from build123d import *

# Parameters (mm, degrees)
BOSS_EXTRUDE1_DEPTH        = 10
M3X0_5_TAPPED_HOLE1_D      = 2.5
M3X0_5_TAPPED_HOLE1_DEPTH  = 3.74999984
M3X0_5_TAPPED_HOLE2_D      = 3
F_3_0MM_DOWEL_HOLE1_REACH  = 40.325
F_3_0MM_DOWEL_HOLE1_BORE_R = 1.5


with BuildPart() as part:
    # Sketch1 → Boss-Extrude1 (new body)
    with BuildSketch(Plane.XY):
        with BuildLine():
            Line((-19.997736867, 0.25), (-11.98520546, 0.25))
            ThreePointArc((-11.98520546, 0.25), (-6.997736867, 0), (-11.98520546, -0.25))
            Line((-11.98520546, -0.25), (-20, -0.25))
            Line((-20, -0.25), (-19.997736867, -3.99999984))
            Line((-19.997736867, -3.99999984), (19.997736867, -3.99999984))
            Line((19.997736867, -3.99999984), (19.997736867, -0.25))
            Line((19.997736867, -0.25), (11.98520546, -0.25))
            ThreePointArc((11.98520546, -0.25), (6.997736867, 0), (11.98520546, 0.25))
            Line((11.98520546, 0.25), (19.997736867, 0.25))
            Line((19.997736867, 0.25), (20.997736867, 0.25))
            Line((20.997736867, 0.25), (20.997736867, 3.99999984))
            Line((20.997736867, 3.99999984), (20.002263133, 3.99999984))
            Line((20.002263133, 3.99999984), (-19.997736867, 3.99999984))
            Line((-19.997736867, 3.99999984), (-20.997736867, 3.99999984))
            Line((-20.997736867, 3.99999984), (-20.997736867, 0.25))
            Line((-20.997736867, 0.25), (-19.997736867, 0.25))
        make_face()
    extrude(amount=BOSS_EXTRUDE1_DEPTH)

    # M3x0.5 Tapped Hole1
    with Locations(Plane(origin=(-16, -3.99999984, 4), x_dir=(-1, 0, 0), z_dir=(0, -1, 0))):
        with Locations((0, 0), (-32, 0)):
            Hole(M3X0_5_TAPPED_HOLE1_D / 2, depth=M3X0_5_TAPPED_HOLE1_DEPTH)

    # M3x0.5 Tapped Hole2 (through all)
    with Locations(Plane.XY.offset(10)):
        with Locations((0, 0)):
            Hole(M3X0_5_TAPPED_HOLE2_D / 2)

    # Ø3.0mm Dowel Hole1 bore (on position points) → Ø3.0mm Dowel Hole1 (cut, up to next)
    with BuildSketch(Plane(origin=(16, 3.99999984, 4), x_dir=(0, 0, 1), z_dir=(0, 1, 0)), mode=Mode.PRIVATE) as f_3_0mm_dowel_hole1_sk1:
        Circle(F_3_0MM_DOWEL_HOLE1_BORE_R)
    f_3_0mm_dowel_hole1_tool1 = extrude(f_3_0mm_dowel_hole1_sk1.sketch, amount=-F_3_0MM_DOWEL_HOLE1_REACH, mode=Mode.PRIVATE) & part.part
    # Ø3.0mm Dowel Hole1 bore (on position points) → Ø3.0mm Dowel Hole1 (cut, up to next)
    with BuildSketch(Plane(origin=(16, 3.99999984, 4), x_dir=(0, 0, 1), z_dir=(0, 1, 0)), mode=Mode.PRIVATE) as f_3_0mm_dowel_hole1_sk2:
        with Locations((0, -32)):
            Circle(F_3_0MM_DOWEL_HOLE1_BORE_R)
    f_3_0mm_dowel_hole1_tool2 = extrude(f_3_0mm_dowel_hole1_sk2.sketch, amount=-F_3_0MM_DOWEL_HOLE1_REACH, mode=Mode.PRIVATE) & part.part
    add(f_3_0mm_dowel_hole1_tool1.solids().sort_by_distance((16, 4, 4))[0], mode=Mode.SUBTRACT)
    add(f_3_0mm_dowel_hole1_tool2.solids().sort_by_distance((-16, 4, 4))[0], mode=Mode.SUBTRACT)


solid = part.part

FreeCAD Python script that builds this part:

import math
import FreeCAD as App
import Part
import Sketcher
Q = App.Units.Quantity

doc = App.newDocument("Part")
body = doc.addObject("PartDesign::Body", "Body")

# Sketch on XY plane
sketch1 = body.newObject("Sketcher::SketchObject", "Sketch")
sketch1.AttachmentSupport = (doc.getObject("XY_Plane"), [""])
sketch1.MapMode = "FlatFace"
sketch1.addGeometry(Part.ArcOfCircle(Part.Circle(App.Vector(-9.5, 0, 0), App.Vector(0, 0, 1), 2.5), math.radians(-174), math.radians(174)), False)
sketch1.addGeometry(Part.LineSegment(App.Vector(-12, -0.2, 0), App.Vector(-20, -0.2, 0)), False)
sketch1.addGeometry(Part.LineSegment(App.Vector(-20, -0.2, 0), App.Vector(-20, -4, 0)), False)
sketch1.addGeometry(Part.LineSegment(App.Vector(-20, -4, 0), App.Vector(20, -4, 0)), False)
sketch1.addGeometry(Part.LineSegment(App.Vector(20, -4, 0), App.Vector(20, -0.2, 0)), False)
sketch1.addGeometry(Part.LineSegment(App.Vector(20, -0.2, 0), App.Vector(12, -0.2, 0)), False)
sketch1.addGeometry(Part.ArcOfCircle(Part.Circle(App.Vector(9.5, 0, 0), App.Vector(0, 0, 1), 2.5), math.radians(6), math.radians(354)), False)
sketch1.addGeometry(Part.LineSegment(App.Vector(12, 0.2, 0), App.Vector(21, 0.2, 0)), False)
sketch1.addGeometry(Part.LineSegment(App.Vector(21, 0.2, 0), App.Vector(21, 4, 0)), False)
sketch1.addGeometry(Part.LineSegment(App.Vector(21, 4, 0), App.Vector(-21, 4, 0)), False)
sketch1.addGeometry(Part.LineSegment(App.Vector(-21, 4, 0), App.Vector(-21, 0.2, 0)), False)
sketch1.addGeometry(Part.LineSegment(App.Vector(-21, 0.2, 0), App.Vector(-12, 0.2, 0)), False)
sketch1.addConstraint(Sketcher.Constraint("Coincident", 0, 1, 1, 1))
sketch1.addConstraint(Sketcher.Constraint("Coincident", 1, 2, 2, 1))
sketch1.addConstraint(Sketcher.Constraint("Coincident", 2, 2, 3, 1))
sketch1.addConstraint(Sketcher.Constraint("Coincident", 3, 2, 4, 1))
sketch1.addConstraint(Sketcher.Constraint("Coincident", 4, 2, 5, 1))
sketch1.addConstraint(Sketcher.Constraint("Coincident", 5, 2, 6, 2))
sketch1.addConstraint(Sketcher.Constraint("Coincident", 6, 1, 7, 1))
sketch1.addConstraint(Sketcher.Constraint("Coincident", 7, 2, 8, 1))
sketch1.addConstraint(Sketcher.Constraint("Coincident", 8, 2, 9, 1))
sketch1.addConstraint(Sketcher.Constraint("Coincident", 9, 2, 10, 1))
sketch1.addConstraint(Sketcher.Constraint("Coincident", 10, 2, 11, 1))
sketch1.addConstraint(Sketcher.Constraint("Coincident", 11, 2, 0, 2))
sketch1.addConstraint(Sketcher.Constraint("Horizontal", 1))
sketch1.addConstraint(Sketcher.Constraint("Horizontal", 3))
sketch1.addConstraint(Sketcher.Constraint("Vertical", 4))
sketch1.addConstraint(Sketcher.Constraint("Horizontal", 5))
sketch1.addConstraint(Sketcher.Constraint("Horizontal", 7))
sketch1.addConstraint(Sketcher.Constraint("Vertical", 8))
sketch1.addConstraint(Sketcher.Constraint("Horizontal", 9))
sketch1.addConstraint(Sketcher.Constraint("Vertical", 10))
sketch1.addConstraint(Sketcher.Constraint("Horizontal", 11))
sketch1.addConstraint(Sketcher.Constraint("Equal", 0, 6))
sketch1.addConstraint(Sketcher.Constraint("Symmetric", 0, 3, 6, 3, -1, 1))
sketch1.addConstraint(Sketcher.Constraint("Symmetric", 0, 1, 5, 2, -2))
sketch1.addConstraint(Sketcher.Constraint("Symmetric", 7, 2, 10, 2, -2))
sketch1.addConstraint(Sketcher.Constraint("Vertical", 5, 2, 6, 1))
sketch1.addConstraint(Sketcher.Constraint("Equal", 4, 8))
sketch1.addConstraint(Sketcher.Constraint("Radius", 0, Q("2.5 mm")))
sketch1.addConstraint(Sketcher.Constraint("DistanceX", 1, 2, -1, 1, Q("20 mm")))
sketch1.addConstraint(Sketcher.Constraint("DistanceY", 2, 2, -1, 1, Q("4 mm")))
sketch1.addConstraint(Sketcher.Constraint("DistanceX", 4, 2, 7, 2, Q("1 mm")))
sketch1.addConstraint(Sketcher.Constraint("DistanceX", 9, 2, 2, 2, Q("1 mm")))
sketch1.addConstraint(Sketcher.Constraint("DistanceY", 4, 1, 4, 2, Q("3.75 mm")))
sketch1.addConstraint(Sketcher.Constraint("DistanceX", 2, 2, 0, 3, Q("10.5 mm")))
sketch1.addConstraint(Sketcher.Constraint("DistanceX", 1, 2, 1, 1, Q("8.014795 mm")))
pad1 = body.newObject("PartDesign::Pad", "Pad")
pad1.Profile = sketch1
pad1.Length = 10

# Sketch on XZ plane
sketch2 = body.newObject("Sketcher::SketchObject", "Sketch001")
sketch2.AttachmentSupport = (doc.getObject("XZ_Plane"), [""])
sketch2.MapMode = "FlatFace"
sketch2.AttachmentOffset = App.Placement(App.Vector(0, 0, 4), App.Rotation())
sketch2.addGeometry(Part.Circle(App.Vector(-16, 4, 0), App.Vector(0, 0, 1), 1.2), False)
sketch2.addGeometry(Part.Circle(App.Vector(16, 4, 0), App.Vector(0, 0, 1), 1.2), False)
sketch2.addConstraint(Sketcher.Constraint("Equal", 0, 1))
sketch2.addConstraint(Sketcher.Constraint("Symmetric", 0, 3, 1, 3, -2))
sketch2.addConstraint(Sketcher.Constraint("Diameter", 0, Q("2.5 mm")))
sketch2.addConstraint(Sketcher.Constraint("DistanceX", 0, 3, -1, 1, Q("16 mm")))
sketch2.addConstraint(Sketcher.Constraint("DistanceY", -1, 1, 0, 3, Q("4 mm")))
doc.recompute()
hole = body.newObject("PartDesign::Hole", "Hole")
hole.Profile = sketch2
hole.ThreadType = "None"
hole.Diameter = 2.5
hole.DepthType = "Dimension"
hole.Depth = 3.75
hole.DrillPoint = "Flat"

# Sketch on XY plane
sketch3 = body.newObject("Sketcher::SketchObject", "Sketch002")
sketch3.AttachmentSupport = (doc.getObject("XY_Plane"), [""])
sketch3.MapMode = "FlatFace"
sketch3.AttachmentOffset = App.Placement(App.Vector(0, 0, 10), App.Rotation())
sketch3.addGeometry(Part.Circle(App.Vector(0, 0, 0), App.Vector(0, 0, 1), 1.5), False)
sketch3.addConstraint(Sketcher.Constraint("Coincident", 0, 3, -1, 1))
sketch3.addConstraint(Sketcher.Constraint("Diameter", 0, Q("3 mm")))
doc.recompute()
hole2 = body.newObject("PartDesign::Hole", "Hole001")
hole2.Profile = sketch3
hole2.ThreadType = "None"
hole2.Diameter = 3
hole2.DepthType = "ThroughAll"

# Sketch on XZ plane
sketch4 = body.newObject("Sketcher::SketchObject", "Sketch003")
sketch4.AttachmentSupport = (doc.getObject("XZ_Plane"), [""])
sketch4.MapMode = "FlatFace"
sketch4.AttachmentOffset = App.Placement(App.Vector(0, 0, -4), App.Rotation())
sketch4.addGeometry(Part.Circle(App.Vector(16, 4, 0), App.Vector(0, 0, 1), 1.5), False)
sketch4.addConstraint(Sketcher.Constraint("Diameter", 0, Q("3 mm")))
sketch4.addConstraint(Sketcher.Constraint("DistanceX", -1, 1, 0, 3, Q("16 mm")))
sketch4.addConstraint(Sketcher.Constraint("DistanceY", -1, 1, 0, 3, Q("4 mm")))
pocket1 = body.newObject("PartDesign::Pocket", "Pocket")
pocket1.Profile = sketch4
pocket1.Type = "UpToFirst"
pocket1.Reversed = True

# Sketch on XZ plane
sketch5 = body.newObject("Sketcher::SketchObject", "Sketch004")
sketch5.AttachmentSupport = (doc.getObject("XZ_Plane"), [""])
sketch5.MapMode = "FlatFace"
sketch5.AttachmentOffset = App.Placement(App.Vector(0, 0, -4), App.Rotation())
sketch5.addGeometry(Part.Circle(App.Vector(-16, 4, 0), App.Vector(0, 0, 1), 1.5), False)
sketch5.addConstraint(Sketcher.Constraint("Diameter", 0, Q("3 mm")))
sketch5.addConstraint(Sketcher.Constraint("DistanceX", 0, 3, -1, 1, Q("16 mm")))
sketch5.addConstraint(Sketcher.Constraint("DistanceY", -1, 1, 0, 3, Q("4 mm")))
pocket2 = body.newObject("PartDesign::Pocket", "Pocket001")
pocket2.Profile = sketch5
pocket2.Type = "UpToFirst"
pocket2.Reversed = True

doc.recompute()
